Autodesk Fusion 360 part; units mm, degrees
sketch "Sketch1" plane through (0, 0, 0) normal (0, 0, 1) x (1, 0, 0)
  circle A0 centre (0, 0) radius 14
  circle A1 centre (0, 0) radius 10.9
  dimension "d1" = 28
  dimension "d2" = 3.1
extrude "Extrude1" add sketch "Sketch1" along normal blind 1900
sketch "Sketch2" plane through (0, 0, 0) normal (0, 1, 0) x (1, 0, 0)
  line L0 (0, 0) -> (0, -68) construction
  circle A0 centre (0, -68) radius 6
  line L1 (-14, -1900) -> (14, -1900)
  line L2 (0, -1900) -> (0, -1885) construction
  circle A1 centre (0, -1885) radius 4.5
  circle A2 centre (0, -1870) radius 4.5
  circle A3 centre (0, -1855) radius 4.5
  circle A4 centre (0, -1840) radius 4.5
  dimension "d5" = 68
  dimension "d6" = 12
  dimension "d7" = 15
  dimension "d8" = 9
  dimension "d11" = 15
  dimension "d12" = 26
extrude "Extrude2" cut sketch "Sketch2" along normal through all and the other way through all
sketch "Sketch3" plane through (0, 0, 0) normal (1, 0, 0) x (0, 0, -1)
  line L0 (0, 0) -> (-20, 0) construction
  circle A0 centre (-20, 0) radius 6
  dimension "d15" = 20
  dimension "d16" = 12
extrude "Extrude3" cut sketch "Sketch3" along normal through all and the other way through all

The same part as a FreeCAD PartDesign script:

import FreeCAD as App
import Part
import Sketcher

V = App.Vector

doc = App.newDocument("Part")
body = doc.addObject("PartDesign::Body", "Body")

sketch1 = body.newObject("Sketcher::SketchObject", "Sketch")
sketch1.AttachmentSupport = (doc.getObject("XY_Plane"), [""])
sketch1.MapMode = "FlatFace"
sketch1.addGeometry([
    Part.Circle(V(0, 0, 0), V(0, 0, 1), 14),
    Part.Circle(V(0, 0, 0), V(0, 0, 1), 11),
], False)
sketch1.addConstraint([
    Sketcher.Constraint("Coincident", 0, 3, -1, 1),
    Sketcher.Constraint("Coincident", 1, 3, -1, 1),
    Sketcher.Constraint("Diameter", 0, 28.0),
    Sketcher.Constraint("Diameter", 1, 21.8),
])
pad1 = body.newObject("PartDesign::Pad", "Pad")
pad1.Profile = sketch1
pad1.Length = 1900

sketch2 = body.newObject("Sketcher::SketchObject", "Sketch001")
sketch2.AttachmentSupport = (doc.getObject("XZ_Plane"), [""])
sketch2.MapMode = "FlatFace"
sketch2.addGeometry([
    Part.Circle(V(0, 68, 0), V(0, 0, 1), 6),
    Part.Circle(V(0, 1885, 0), V(0, 0, 1), 4.5),
    Part.Circle(V(0, 1870, 0), V(0, 0, 1), 4.5),
    Part.Circle(V(0, 1855, 0), V(0, 0, 1), 4.5),
    Part.Circle(V(0, 1840, 0), V(0, 0, 1), 4.5),
], False)
sketch2.addConstraint([
    Sketcher.Constraint("Equal", 1, 2),
    Sketcher.Constraint("Equal", 2, 3),
    Sketcher.Constraint("Equal", 3, 4),
    Sketcher.Constraint("PointOnObject", 0, 3, -2),
    Sketcher.Constraint("PointOnObject", 1, 3, -2),
    Sketcher.Constraint("PointOnObject", 2, 3, -2),
    Sketcher.Constraint("PointOnObject", 3, 3, -2),
    Sketcher.Constraint("PointOnObject", 4, 3, -2),
    Sketcher.Constraint("Diameter", 0, 12.0),
    Sketcher.Constraint("Diameter", 1, 9.0),
    Sketcher.Constraint("DistanceY", -1, 1, 0, 3, 68.0),
    Sketcher.Constraint("DistanceY", 2, 3, 1, 3, 15.0),
    Sketcher.Constraint("DistanceY", 3, 3, 2, 3, 15.0),
    Sketcher.Constraint("DistanceY", 4, 3, 3, 3, 15.0),
    Sketcher.Constraint("DistanceY", -1, 1, 1, 3, 1885.0),
])
pocket1 = body.newObject("PartDesign::Pocket", "Pocket")
pocket1.Profile = sketch2
pocket1.Type = "ThroughAll"
pocket1.Midplane = True

sketch3 = body.newObject("Sketcher::SketchObject", "Sketch002")
sketch3.AttachmentSupport = (doc.getObject("YZ_Plane"), [""])
sketch3.MapMode = "FlatFace"
sketch3.addGeometry(Part.Circle(V(0, 20, 0), V(0, 0, 1), 6), False)
sketch3.addConstraint([
    Sketcher.Constraint("PointOnObject", 0, 3, -2),
    Sketcher.Constraint("Diameter", 0, 12.0),
    Sketcher.Constraint("DistanceY", -1, 1, 0, 3, 20.0),
])
pocket2 = body.newObject("PartDesign::Pocket", "Pocket001")
pocket2.Profile = sketch3
pocket2.Type = "ThroughAll"
pocket2.Midplane = True

doc.recompute()
